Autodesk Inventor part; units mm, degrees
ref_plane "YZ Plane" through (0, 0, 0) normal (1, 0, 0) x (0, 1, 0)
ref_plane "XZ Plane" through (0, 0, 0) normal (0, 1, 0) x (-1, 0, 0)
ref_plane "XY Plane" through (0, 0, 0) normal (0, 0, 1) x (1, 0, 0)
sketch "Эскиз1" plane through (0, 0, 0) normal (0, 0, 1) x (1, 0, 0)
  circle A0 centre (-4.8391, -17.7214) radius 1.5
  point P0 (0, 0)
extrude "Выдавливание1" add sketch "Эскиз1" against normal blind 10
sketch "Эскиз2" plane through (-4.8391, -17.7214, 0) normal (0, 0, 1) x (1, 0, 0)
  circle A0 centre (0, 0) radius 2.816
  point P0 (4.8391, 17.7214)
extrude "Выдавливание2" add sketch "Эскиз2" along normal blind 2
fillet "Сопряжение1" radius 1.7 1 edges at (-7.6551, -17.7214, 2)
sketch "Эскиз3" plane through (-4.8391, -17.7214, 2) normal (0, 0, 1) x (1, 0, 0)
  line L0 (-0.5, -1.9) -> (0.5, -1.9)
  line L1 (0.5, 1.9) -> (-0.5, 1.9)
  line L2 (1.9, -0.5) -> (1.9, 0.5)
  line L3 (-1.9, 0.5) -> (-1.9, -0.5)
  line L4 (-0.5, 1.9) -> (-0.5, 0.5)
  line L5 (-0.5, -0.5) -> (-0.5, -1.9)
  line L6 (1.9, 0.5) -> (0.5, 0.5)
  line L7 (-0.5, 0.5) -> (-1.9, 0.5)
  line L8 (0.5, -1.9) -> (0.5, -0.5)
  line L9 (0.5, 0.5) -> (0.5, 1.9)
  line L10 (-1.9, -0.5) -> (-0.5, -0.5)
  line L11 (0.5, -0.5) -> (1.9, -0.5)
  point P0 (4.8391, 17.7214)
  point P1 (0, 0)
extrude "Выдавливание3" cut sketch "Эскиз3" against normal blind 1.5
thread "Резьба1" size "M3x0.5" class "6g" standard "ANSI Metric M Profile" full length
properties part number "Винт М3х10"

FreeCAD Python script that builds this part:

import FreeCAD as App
import Part
import Sketcher


def edges_at(feature, points):
    """Names of the edges that pass closest to the given points."""
    edges = feature.Shape.Edges
    near = lambda p: min(range(len(edges)), key=lambda i: edges[i].distToShape(Part.Vertex(*p))[0])
    return sorted({f"Edge{near(p) + 1}" for p in points})

doc = App.newDocument("Part")
params = doc.addObject("Spreadsheet::Sheet", "Params")
for row, (alias, value) in enumerate([
    ("sketch1_diameter", "3 mm"),
    ("pad1_length", "10 mm"),
    ("pad2_length", "2 mm"),
    ("fillet_radius", "1.7 mm"),
    ("sketch3_width", "1 mm"),
    ("sketch3_width2", "1.4 mm"),
    ("pocket1_length", "1.5 mm"),
], start=1):
    params.set(f"A{row}", alias)
    params.set(f"B{row}", "=" + value)
    params.setAlias(f"B{row}", alias)

body = doc.addObject("PartDesign::Body", "Body")

# Sketch on XY plane
sketch1 = body.newObject("Sketcher::SketchObject", "Sketch")
sketch1.AttachmentSupport = (doc.getObject("XY_Plane"), [""])
sketch1.MapMode = "FlatFace"
sketch1.addGeometry(Part.Circle(App.Vector(-4.8, -17.7, 0), App.Vector(0, 0, 1), 1.5), False)
sketch1.addConstraint([
    Sketcher.Constraint("Diameter", 0, 3.0),
    Sketcher.Constraint("DistanceX", 0, 3, -1, 1, 4.839),
    Sketcher.Constraint("DistanceY", 0, 3, -1, 1, 17.7214),
])
sketch1.setExpression("Constraints[0]", "Params.sketch1_diameter")
pad1 = body.newObject("PartDesign::Pad", "Pad")
pad1.Profile = sketch1
pad1.setExpression("Length", "Params.pad1_length")
pad1.Reversed = True

# Sketch on XY plane
sketch2 = body.newObject("Sketcher::SketchObject", "Sketch001")
sketch2.AttachmentSupport = (doc.getObject("XY_Plane"), [""])
sketch2.MapMode = "FlatFace"
sketch2.addGeometry(Part.Circle(App.Vector(-4.8, -17.7, 0), App.Vector(0, 0, 1), 2.8), False)
sketch2.addConstraint([
    Sketcher.Constraint("Diameter", 0, 5.632),
    Sketcher.Constraint("DistanceX", 0, 3, -1, 1, 4.839),
    Sketcher.Constraint("DistanceY", 0, 3, -1, 1, 17.7214),
])
pad2 = body.newObject("PartDesign::Pad", "Pad001")
pad2.Profile = sketch2
pad2.setExpression("Length", "Params.pad2_length")
doc.recompute()

fillet = body.newObject("PartDesign::Fillet", "Fillet")
fillet.Base = (pad2, edges_at(pad2, [(-7.655, -17.721, 2)]))
fillet.setExpression("Radius", "Params.fillet_radius")

# Sketch on XY plane
sketch3 = body.newObject("Sketcher::SketchObject", "Sketch002")
sketch3.AttachmentSupport = (doc.getObject("XY_Plane"), [""])
sketch3.MapMode = "FlatFace"
sketch3.AttachmentOffset = App.Placement(App.Vector(0, 0, 2), App.Rotation())
sketch3.addGeometry([
    Part.LineSegment(App.Vector(-5.3, -18.2, 0), App.Vector(-5.3, -19.6, 0)),  # 0
    Part.LineSegment(App.Vector(-5.3, -19.6, 0), App.Vector(-4.3, -19.6, 0)),  # 1
    Part.LineSegment(App.Vector(-4.3, -19.6, 0), App.Vector(-4.3, -18.2, 0)),  # 2
    Part.LineSegment(App.Vector(-4.3, -18.2, 0), App.Vector(-2.9, -18.2, 0)),  # 3
    Part.LineSegment(App.Vector(-2.9, -18.2, 0), App.Vector(-2.9, -17.2, 0)),  # 4
    Part.LineSegment(App.Vector(-2.9, -17.2, 0), App.Vector(-4.3, -17.2, 0)),  # 5
    Part.LineSegment(App.Vector(-4.3, -17.2, 0), App.Vector(-4.3, -15.8, 0)),  # 6
    Part.LineSegment(App.Vector(-4.3, -15.8, 0), App.Vector(-5.3, -15.8, 0)),  # 7
    Part.LineSegment(App.Vector(-5.3, -15.8, 0), App.Vector(-5.3, -17.2, 0)),  # 8
    Part.LineSegment(App.Vector(-5.3, -17.2, 0), App.Vector(-6.7, -17.2, 0)),  # 9
    Part.LineSegment(App.Vector(-6.7, -17.2, 0), App.Vector(-6.7, -18.2, 0)),  # 10
    Part.LineSegment(App.Vector(-6.7, -18.2, 0), App.Vector(-5.3, -18.2, 0)),  # 11
], False)
sketch3.addConstraint([
    Sketcher.Constraint("Coincident", 0, 2, 1, 1),
    Sketcher.Constraint("Coincident", 1, 2, 2, 1),
    Sketcher.Constraint("Coincident", 2, 2, 3, 1),
    Sketcher.Constraint("Coincident", 3, 2, 4, 1),
    Sketcher.Constraint("Coincident", 4, 2, 5, 1),
    Sketcher.Constraint("Coincident", 5, 2, 6, 1),
    Sketcher.Constraint("Coincident", 6, 2, 7, 1),
    Sketcher.Constraint("Coincident", 7, 2, 8, 1),
    Sketcher.Constraint("Coincident", 8, 2, 9, 1),
    Sketcher.Constraint("Coincident", 9, 2, 10, 1),
    Sketcher.Constraint("Coincident", 10, 2, 11, 1),
    Sketcher.Constraint("Coincident", 11, 2, 0, 1),
    Sketcher.Constraint("Vertical", 0),
    Sketcher.Constraint("Horizontal", 1),
    Sketcher.Constraint("Vertical", 2),
    Sketcher.Constraint("Horizontal", 3),
    Sketcher.Constraint("Vertical", 4),
    Sketcher.Constraint("Horizontal", 5),
    Sketcher.Constraint("Vertical", 6),
    Sketcher.Constraint("Horizontal", 7),
    Sketcher.Constraint("Vertical", 8),
    Sketcher.Constraint("Horizontal", 9),
    Sketcher.Constraint("Vertical", 10),
    Sketcher.Constraint("Horizontal", 11),
    Sketcher.Constraint("Horizontal", 5, 2, 8, 2),
    Sketcher.Constraint("Horizontal", 3, 2, 10, 2),
    Sketcher.Constraint("Vertical", 2, 2, 5, 2),
    Sketcher.Constraint("Vertical", 0, 2, 7, 2),
    Sketcher.Constraint("Equal", 5, 9),
    Sketcher.Constraint("Equal", 11, 0),
    Sketcher.Constraint("Equal", 7, 4),
    Sketcher.Constraint("Equal", 2, 6),
    Sketcher.Constraint("DistanceX", 1, 1, 1, 2, 1.0),
    Sketcher.Constraint("DistanceX", 3, 1, 3, 2, 1.4),
    Sketcher.Constraint("DistanceX", 0, 2, -1, 1, 5.339),
    Sketcher.Constraint("DistanceY", 0, 2, -1, 1, 19.6214),
])
sketch3.setExpression("Constraints[32]", "Params.sketch3_width")
sketch3.setExpression("Constraints[33]", "Params.sketch3_width2")
pocket1 = body.newObject("PartDesign::Pocket", "Pocket")
pocket1.Profile = sketch3
pocket1.setExpression("Length", "Params.pocket1_length")

doc.recompute()
